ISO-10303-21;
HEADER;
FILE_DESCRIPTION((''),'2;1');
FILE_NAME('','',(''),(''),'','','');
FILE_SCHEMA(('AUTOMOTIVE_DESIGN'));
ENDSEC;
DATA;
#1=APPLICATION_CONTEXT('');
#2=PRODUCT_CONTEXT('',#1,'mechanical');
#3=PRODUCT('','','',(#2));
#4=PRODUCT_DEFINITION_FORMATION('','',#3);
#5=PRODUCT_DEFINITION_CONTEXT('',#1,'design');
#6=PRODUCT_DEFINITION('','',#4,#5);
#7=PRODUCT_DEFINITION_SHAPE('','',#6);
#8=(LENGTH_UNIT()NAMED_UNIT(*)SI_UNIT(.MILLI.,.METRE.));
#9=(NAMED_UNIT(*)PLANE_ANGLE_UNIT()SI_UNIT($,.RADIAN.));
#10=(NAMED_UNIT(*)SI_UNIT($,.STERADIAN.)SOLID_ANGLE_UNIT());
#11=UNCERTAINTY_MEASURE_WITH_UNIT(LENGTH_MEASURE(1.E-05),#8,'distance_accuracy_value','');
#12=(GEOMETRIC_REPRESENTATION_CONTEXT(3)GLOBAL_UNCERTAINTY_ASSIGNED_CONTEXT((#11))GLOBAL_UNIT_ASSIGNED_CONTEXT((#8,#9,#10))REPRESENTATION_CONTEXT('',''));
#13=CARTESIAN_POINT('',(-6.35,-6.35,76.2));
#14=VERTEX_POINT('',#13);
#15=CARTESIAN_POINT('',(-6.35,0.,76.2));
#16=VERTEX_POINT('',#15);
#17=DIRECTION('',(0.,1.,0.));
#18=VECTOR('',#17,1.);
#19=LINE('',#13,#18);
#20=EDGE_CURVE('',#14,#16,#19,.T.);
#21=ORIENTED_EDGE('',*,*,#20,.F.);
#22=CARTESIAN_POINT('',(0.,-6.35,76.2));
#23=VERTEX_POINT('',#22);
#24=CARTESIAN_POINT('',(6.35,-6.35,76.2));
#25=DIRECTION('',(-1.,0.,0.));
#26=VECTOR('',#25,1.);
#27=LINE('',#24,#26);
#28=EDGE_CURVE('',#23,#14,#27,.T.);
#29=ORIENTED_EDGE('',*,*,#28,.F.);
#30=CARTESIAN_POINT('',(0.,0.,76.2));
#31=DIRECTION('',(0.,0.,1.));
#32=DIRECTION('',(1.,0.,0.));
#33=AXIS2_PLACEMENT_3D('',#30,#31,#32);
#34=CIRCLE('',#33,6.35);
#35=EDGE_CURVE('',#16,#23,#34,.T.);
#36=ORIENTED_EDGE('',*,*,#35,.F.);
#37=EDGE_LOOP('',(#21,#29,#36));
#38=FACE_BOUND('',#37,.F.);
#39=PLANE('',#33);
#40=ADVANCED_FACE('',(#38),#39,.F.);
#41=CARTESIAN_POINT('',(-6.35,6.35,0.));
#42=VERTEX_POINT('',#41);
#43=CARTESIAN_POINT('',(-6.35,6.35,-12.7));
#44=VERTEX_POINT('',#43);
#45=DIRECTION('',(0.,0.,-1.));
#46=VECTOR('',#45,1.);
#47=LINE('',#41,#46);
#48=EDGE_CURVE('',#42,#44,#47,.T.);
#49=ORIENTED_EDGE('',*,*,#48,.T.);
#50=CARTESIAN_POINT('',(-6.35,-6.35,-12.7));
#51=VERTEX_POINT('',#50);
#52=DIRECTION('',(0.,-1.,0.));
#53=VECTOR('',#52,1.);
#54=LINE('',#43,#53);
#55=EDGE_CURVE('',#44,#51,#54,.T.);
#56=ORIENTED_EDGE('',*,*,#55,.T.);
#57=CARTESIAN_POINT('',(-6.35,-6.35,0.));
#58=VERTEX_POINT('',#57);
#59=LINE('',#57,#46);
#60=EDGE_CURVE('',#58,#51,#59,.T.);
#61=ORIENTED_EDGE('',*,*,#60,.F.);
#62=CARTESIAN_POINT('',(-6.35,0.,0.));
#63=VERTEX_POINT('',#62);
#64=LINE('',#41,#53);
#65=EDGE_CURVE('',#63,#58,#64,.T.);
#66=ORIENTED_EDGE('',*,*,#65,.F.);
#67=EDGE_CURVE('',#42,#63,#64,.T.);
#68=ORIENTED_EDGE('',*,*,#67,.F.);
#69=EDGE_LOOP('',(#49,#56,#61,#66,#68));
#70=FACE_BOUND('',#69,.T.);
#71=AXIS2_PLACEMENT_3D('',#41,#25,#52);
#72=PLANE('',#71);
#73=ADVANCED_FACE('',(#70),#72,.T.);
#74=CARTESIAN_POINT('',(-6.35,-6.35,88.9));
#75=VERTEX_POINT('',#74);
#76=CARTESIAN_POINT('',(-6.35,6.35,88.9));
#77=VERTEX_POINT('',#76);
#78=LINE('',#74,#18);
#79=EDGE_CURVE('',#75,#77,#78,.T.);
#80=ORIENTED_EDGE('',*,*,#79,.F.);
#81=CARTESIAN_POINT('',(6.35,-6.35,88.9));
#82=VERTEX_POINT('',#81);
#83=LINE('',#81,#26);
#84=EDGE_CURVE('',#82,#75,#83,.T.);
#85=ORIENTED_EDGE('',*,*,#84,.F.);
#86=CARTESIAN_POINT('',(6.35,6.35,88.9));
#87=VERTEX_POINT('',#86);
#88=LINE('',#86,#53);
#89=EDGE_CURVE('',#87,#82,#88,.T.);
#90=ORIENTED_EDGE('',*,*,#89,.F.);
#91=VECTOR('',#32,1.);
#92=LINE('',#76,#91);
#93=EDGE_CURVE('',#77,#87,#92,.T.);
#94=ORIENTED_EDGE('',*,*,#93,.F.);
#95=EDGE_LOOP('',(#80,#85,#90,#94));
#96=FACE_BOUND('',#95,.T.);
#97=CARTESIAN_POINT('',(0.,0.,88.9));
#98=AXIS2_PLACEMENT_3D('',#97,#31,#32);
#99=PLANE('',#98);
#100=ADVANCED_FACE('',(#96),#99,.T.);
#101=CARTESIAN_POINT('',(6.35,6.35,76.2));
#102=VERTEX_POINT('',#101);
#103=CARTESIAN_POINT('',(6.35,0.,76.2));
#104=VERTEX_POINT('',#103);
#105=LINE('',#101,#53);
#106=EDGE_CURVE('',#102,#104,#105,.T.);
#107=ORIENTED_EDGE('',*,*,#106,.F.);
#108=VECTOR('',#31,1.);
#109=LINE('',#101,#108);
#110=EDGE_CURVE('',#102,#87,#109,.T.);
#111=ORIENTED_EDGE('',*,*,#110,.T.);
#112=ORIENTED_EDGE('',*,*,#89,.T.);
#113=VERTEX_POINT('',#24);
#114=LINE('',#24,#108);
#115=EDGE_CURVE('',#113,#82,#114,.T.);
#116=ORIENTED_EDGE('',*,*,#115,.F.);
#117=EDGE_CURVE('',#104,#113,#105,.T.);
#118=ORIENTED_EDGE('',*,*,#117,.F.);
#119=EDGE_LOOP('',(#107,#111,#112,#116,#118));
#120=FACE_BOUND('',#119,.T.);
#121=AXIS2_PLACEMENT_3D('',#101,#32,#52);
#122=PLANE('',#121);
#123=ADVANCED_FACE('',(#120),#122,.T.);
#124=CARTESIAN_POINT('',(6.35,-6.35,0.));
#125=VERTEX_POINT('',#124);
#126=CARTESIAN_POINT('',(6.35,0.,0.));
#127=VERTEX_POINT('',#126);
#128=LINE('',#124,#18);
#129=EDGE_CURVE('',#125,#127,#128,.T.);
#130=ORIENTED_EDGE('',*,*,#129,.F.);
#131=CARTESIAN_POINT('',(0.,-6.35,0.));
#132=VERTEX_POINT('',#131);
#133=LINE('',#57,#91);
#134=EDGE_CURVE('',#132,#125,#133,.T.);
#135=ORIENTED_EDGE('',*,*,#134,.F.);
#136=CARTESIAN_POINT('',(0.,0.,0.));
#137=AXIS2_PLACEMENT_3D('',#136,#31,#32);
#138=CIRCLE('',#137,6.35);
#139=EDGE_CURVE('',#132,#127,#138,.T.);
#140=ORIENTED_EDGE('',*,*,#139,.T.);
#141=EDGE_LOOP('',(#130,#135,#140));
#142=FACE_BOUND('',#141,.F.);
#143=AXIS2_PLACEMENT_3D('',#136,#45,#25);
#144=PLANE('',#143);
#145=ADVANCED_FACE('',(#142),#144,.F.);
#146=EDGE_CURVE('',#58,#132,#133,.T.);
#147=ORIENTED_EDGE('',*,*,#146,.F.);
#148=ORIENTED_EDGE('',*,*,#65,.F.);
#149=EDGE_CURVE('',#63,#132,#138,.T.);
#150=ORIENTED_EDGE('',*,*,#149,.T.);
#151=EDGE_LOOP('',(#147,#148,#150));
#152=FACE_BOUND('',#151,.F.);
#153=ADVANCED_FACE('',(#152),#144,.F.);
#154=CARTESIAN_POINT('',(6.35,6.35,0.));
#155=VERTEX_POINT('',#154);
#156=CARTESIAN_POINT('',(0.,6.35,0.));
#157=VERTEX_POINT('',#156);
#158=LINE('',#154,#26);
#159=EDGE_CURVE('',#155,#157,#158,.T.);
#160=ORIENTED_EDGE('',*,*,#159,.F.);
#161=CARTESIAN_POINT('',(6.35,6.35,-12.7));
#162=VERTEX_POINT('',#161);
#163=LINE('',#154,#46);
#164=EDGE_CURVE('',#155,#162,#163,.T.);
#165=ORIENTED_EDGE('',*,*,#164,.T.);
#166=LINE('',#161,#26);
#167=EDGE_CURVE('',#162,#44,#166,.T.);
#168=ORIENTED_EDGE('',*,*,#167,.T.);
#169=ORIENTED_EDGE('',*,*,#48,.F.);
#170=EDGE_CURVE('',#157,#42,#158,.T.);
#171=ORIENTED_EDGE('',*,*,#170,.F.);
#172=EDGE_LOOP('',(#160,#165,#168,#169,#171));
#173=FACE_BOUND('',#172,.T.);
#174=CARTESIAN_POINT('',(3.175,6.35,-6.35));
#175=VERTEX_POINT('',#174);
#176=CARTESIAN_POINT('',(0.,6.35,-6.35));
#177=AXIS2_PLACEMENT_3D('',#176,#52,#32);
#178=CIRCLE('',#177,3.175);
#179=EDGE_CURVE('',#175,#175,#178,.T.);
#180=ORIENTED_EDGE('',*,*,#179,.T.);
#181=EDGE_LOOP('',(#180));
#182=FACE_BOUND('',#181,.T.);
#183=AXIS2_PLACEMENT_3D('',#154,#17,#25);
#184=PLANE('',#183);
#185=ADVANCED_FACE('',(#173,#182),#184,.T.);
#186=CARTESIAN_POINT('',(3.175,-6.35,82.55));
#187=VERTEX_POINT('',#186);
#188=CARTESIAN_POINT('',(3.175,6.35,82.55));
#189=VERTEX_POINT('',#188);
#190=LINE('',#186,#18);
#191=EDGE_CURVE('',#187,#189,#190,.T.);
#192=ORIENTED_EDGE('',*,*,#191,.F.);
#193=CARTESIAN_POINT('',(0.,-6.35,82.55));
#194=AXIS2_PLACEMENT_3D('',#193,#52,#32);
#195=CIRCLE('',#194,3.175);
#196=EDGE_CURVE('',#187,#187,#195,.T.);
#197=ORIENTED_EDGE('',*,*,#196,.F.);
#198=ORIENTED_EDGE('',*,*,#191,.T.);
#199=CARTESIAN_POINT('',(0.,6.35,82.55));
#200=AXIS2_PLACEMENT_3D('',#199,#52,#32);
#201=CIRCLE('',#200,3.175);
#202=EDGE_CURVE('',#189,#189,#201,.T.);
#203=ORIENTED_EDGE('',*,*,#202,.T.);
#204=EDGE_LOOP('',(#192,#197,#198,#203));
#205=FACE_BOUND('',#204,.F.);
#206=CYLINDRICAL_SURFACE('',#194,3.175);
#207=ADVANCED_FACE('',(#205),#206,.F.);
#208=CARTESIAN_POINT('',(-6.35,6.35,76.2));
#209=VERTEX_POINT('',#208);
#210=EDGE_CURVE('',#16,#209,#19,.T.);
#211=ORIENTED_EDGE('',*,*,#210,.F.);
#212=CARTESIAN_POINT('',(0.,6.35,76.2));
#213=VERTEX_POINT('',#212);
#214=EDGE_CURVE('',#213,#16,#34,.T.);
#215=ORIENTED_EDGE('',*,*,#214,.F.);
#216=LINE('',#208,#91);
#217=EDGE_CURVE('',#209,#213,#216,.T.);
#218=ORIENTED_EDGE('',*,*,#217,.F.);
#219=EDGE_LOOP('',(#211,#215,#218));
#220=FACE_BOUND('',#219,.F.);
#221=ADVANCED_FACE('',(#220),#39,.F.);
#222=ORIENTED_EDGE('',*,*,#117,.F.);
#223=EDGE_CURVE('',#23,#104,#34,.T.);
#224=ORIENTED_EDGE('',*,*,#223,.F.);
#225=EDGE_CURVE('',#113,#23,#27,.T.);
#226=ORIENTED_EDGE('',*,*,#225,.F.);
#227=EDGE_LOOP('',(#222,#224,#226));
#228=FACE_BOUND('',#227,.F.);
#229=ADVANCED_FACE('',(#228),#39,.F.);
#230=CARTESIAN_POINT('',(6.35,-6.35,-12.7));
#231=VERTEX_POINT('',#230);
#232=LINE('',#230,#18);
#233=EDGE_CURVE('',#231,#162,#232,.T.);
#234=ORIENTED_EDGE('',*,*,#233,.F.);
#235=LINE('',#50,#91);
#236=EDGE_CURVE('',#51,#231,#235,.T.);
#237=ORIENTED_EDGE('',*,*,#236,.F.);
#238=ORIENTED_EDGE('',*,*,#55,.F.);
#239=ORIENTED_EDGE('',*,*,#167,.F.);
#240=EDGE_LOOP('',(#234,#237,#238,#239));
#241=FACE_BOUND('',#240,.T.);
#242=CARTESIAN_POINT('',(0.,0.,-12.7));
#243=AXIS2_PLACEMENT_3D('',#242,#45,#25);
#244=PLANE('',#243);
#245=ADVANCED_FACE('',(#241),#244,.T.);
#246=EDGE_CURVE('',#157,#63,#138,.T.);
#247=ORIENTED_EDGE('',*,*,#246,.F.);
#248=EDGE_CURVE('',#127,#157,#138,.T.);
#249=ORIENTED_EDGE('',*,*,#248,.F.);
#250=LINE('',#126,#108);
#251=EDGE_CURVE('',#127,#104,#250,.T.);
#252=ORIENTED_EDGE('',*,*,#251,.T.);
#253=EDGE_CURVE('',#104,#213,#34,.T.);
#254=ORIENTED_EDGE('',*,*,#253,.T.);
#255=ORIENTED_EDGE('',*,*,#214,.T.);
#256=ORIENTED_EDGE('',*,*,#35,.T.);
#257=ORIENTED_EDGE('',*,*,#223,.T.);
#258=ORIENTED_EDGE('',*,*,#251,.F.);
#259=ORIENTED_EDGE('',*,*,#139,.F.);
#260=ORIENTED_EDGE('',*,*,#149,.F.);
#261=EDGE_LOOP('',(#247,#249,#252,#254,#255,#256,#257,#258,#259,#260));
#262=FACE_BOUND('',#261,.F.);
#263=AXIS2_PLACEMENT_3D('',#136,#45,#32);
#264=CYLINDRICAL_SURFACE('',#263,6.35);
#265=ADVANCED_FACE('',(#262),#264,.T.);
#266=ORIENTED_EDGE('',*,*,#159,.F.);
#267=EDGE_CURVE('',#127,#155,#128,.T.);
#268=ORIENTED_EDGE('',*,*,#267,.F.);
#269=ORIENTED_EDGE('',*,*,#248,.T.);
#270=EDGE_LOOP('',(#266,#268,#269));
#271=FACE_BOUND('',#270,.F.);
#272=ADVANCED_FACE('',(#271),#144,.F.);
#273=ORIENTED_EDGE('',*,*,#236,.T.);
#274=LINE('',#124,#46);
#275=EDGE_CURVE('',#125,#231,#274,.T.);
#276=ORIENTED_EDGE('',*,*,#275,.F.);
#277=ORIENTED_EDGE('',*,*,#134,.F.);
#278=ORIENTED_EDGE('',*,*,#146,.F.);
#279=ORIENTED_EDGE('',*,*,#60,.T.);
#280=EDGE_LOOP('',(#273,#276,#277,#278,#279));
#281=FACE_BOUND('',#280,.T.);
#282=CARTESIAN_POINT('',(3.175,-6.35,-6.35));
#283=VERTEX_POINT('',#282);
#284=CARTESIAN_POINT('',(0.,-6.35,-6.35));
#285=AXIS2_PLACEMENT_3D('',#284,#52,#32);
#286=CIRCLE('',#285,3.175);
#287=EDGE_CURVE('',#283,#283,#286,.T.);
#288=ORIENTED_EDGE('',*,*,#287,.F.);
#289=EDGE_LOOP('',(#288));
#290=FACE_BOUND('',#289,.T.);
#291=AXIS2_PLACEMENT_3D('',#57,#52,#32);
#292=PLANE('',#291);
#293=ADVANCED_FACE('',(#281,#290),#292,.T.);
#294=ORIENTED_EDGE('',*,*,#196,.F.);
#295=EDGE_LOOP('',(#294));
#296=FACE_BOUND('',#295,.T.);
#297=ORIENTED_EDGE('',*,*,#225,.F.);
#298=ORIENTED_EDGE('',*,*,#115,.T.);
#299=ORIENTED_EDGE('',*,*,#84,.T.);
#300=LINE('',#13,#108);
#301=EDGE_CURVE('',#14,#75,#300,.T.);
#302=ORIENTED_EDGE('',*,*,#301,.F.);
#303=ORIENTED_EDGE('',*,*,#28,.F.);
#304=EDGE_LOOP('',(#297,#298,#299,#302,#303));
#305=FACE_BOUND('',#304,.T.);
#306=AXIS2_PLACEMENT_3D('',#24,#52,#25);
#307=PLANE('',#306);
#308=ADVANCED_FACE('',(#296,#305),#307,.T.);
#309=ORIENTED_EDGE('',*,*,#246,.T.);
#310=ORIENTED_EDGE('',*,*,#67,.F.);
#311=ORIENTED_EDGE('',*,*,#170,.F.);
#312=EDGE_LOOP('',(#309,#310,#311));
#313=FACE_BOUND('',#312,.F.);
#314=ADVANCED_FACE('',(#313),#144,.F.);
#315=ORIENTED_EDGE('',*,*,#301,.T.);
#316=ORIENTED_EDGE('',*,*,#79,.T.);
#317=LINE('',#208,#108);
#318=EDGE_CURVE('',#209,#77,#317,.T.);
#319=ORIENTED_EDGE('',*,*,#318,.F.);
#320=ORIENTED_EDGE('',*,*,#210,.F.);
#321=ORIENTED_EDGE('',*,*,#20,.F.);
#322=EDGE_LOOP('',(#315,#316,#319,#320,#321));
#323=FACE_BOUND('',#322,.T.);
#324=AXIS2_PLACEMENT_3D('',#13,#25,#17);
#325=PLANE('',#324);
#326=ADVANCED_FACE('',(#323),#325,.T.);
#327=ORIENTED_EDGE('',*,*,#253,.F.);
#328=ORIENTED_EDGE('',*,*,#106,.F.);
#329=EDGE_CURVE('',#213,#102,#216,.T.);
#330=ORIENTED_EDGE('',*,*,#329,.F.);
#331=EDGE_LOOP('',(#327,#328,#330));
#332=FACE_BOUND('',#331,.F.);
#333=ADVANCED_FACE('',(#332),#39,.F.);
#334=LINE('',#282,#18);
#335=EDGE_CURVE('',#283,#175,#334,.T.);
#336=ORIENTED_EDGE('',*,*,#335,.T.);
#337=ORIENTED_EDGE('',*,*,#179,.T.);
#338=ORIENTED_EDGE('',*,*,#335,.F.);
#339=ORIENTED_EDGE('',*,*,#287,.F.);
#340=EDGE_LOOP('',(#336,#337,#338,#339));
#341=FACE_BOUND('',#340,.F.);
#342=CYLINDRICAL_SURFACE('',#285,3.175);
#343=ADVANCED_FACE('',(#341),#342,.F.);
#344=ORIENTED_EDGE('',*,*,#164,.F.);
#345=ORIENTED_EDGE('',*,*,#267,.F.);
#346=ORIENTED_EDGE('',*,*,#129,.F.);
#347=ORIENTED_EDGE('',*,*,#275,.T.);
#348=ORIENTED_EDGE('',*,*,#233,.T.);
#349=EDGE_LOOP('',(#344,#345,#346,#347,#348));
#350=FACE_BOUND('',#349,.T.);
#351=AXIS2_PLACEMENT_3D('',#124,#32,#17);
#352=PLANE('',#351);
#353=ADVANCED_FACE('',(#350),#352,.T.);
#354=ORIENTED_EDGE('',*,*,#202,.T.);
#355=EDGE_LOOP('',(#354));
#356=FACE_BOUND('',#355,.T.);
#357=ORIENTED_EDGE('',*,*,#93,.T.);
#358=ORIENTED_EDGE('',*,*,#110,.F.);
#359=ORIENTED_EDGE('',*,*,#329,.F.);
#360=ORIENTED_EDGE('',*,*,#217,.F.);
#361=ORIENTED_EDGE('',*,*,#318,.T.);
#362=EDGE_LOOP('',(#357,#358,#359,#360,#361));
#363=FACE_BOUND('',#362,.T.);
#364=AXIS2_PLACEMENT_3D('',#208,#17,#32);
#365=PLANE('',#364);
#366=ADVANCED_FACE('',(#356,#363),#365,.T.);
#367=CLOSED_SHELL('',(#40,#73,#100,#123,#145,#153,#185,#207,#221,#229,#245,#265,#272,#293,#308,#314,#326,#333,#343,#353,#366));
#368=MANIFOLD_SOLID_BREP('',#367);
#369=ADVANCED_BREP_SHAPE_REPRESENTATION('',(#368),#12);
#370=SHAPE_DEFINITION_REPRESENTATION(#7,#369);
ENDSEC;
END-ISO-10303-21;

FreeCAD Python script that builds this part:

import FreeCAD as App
import Part
import Sketcher
Q = App.Units.Quantity


def add_polygon(sketch, points):
    """Adds a closed chain of lines whose ends are joined by coincident constraints."""
    first, n = sketch.GeometryCount, len(points)
    for a, b in zip(points, points[1:] + points[:1]):
        sketch.addGeometry(Part.LineSegment(App.Vector(*a, 0), App.Vector(*b, 0)), False)
    for i in range(n):
        sketch.addConstraint(Sketcher.Constraint("Coincident", first + i, 2, first + (i + 1) % n, 1))

doc = App.newDocument("Part")
params = doc.addObject("Spreadsheet::Sheet", "Params")
for row, (alias, value) in enumerate([
    ("sketch1_diameter", "0.5 in"),
    ("pad1_length", "3 in"),
    ("sketch2_width", "0.5 in"),
    ("pad2_length", "0.5 in"),
    ("sketch3_width", "0.5 in"),
    ("pad3_length", "0.5 in"),
    ("sketch4_diameter", "0.25 in"),
    ("pocket1_length", "1 in"),
], start=1):
    params.set(f"A{row}", alias)
    params.set(f"B{row}", "=" + value)
    params.setAlias(f"B{row}", alias)

body = doc.addObject("PartDesign::Body", "Body")

# Sketch on XY plane
sketch1 = body.newObject("Sketcher::SketchObject", "Sketch")
sketch1.AttachmentSupport = (doc.getObject("XY_Plane"), [""])
sketch1.MapMode = "FlatFace"
sketch1.addGeometry(Part.Circle(App.Vector(0, 0, 0), App.Vector(0, 0, 1), 6), False)
sketch1.addConstraint(Sketcher.Constraint("Coincident", 0, 3, -1, 1))
sketch1.addConstraint(Sketcher.Constraint("Diameter", 0, Q("0.5 in")))
sketch1.setExpression("Constraints[1]", "Params.sketch1_diameter")
pad1 = body.newObject("PartDesign::Pad", "Pad")
pad1.Profile = sketch1
pad1.setExpression("Length", "Params.pad1_length")

# Sketch on XY plane
sketch2 = body.newObject("Sketcher::SketchObject", "Sketch001")
sketch2.AttachmentSupport = (doc.getObject("XY_Plane"), [""])
sketch2.MapMode = "FlatFace"
sketch2.AttachmentOffset = App.Placement(App.Vector(0, 0, 3 * 25.4), App.Rotation())
add_polygon(sketch2, [(6, 6), (-6, 6), (-6, -6), (6, -6)])  # lines 0-3
sketch2.addConstraint(Sketcher.Constraint("Horizontal", 0))
sketch2.addConstraint(Sketcher.Constraint("Vertical", 1))
sketch2.addConstraint(Sketcher.Constraint("Horizontal", 2))
sketch2.addConstraint(Sketcher.Constraint("Vertical", 3))
sketch2.addConstraint(Sketcher.Constraint("Symmetric", 0, 2, 2, 2, -1, 1))
sketch2.addConstraint(Sketcher.Constraint("Equal", 2, 1))
sketch2.addConstraint(Sketcher.Constraint("DistanceX", 0, 2, 0, 1, Q("0.5 in")))
sketch2.setExpression("Constraints[10]", "Params.sketch2_width")
pad2 = body.newObject("PartDesign::Pad", "Pad001")
pad2.Profile = sketch2
pad2.setExpression("Length", "Params.pad2_length")

# Sketch on XY plane
sketch3 = body.newObject("Sketcher::SketchObject", "Sketch002")
sketch3.AttachmentSupport = (doc.getObject("XY_Plane"), [""])
sketch3.MapMode = "FlatFace"
add_polygon(sketch3, [(-6, 6), (6, 6), (6, -6), (-6, -6)])  # lines 0-3
sketch3.addConstraint(Sketcher.Constraint("Horizontal", 0))
sketch3.addConstraint(Sketcher.Constraint("Vertical", 1))
sketch3.addConstraint(Sketcher.Constraint("Horizontal", 2))
sketch3.addConstraint(Sketcher.Constraint("Vertical", 3))
sketch3.addConstraint(Sketcher.Constraint("Symmetric", 0, 2, 2, 2, -1, 1))
sketch3.addConstraint(Sketcher.Constraint("Equal", 2, 1))
sketch3.addConstraint(Sketcher.Constraint("DistanceX", 0, 1, 0, 2, Q("0.5 in")))
sketch3.setExpression("Constraints[10]", "Params.sketch3_width")
pad3 = body.newObject("PartDesign::Pad", "Pad002")
pad3.Profile = sketch3
pad3.setExpression("Length", "Params.pad3_length")
pad3.Reversed = True

# Sketch on XZ plane
sketch4 = body.newObject("Sketcher::SketchObject", "Sketch003")
sketch4.AttachmentSupport = (doc.getObject("XZ_Plane"), [""])
sketch4.MapMode = "FlatFace"
sketch4.AttachmentOffset = App.Placement(App.Vector(0, 0, 0.25 * 25.4), App.Rotation())
sketch4.addGeometry(Part.Circle(App.Vector(0, 82.5, 0), App.Vector(0, 0, 1), 3.2), False)
sketch4.addGeometry(Part.Circle(App.Vector(0, -6.3, 0), App.Vector(0, 0, 1), 3.2), False)
sketch4.addConstraint(Sketcher.Constraint("Equal", 0, 1))
sketch4.addConstraint(Sketcher.Constraint("PointOnObject", 0, 3, -2))
sketch4.addConstraint(Sketcher.Constraint("PointOnObject", 1, 3, -2))
sketch4.addConstraint(Sketcher.Constraint("Diameter", 0, Q("0.25 in")))
sketch4.addConstraint(Sketcher.Constraint("DistanceY", 1, 3, -1, 1, Q("0.25 in")))
sketch4.addConstraint(Sketcher.Constraint("DistanceY", 1, 3, 0, 3, Q("3.5 in")))
sketch4.setExpression("Constraints[3]", "Params.sketch4_diameter")
pocket1 = body.newObject("PartDesign::Pocket", "Pocket")
pocket1.Profile = sketch4
pocket1.setExpression("Length", "Params.pocket1_length")

doc.recompute()
